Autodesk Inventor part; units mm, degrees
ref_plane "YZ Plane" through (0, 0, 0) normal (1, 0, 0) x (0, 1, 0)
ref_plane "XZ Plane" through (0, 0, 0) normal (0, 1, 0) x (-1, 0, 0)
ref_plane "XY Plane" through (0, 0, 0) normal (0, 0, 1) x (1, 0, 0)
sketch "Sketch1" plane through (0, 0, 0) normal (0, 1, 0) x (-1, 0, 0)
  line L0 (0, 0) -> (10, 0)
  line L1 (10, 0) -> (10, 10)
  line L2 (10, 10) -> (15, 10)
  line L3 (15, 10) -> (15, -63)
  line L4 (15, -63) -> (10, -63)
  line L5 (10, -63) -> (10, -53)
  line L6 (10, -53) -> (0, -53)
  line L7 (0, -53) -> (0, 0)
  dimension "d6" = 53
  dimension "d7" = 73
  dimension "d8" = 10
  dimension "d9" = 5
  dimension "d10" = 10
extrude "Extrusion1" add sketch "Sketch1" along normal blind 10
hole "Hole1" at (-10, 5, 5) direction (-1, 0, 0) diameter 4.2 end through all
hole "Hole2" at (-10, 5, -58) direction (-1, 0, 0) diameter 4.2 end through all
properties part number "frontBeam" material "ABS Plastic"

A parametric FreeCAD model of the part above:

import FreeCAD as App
import Part
import Sketcher
from FreeCAD import Vector
Q = App.Units.Quantity


def add_polygon(sketch, points):
    """Adds a closed chain of lines whose ends are joined by coincident constraints."""
    first, n = sketch.GeometryCount, len(points)
    for a, b in zip(points, points[1:] + points[:1]):
        sketch.addGeometry(Part.LineSegment(App.Vector(*a, 0), App.Vector(*b, 0)), False)
    for i in range(n):
        sketch.addConstraint(Sketcher.Constraint("Coincident", first + i, 2, first + (i + 1) % n, 1))

doc = App.newDocument("Part")
params = doc.addObject("Spreadsheet::Sheet", "Params")
for row, (alias, value) in enumerate([
    ("sketch1_width", "10 mm"),
    ("sketch1_width2", "5 mm"),
    ("sketch1_height", "53 mm"),
    ("pad1_length", "10 mm"),
    ("sketch2_diameter", "4.2 mm"),
    ("hole_diameter", "4.2 mm"),
    ("sketch3_diameter", "4.2 mm"),
    ("hole2_diameter", "4.2 mm"),
], start=1):
    params.set(f"A{row}", alias)
    params.set(f"B{row}", "=" + value)
    params.setAlias(f"B{row}", alias)

body = doc.addObject("PartDesign::Body", "Body")

sketch1 = body.newObject("Sketcher::SketchObject", "Sketch")
sketch1.AttachmentSupport = (doc.getObject("XZ_Plane"), [""])
sketch1.MapMode = "FlatFace"
add_polygon(sketch1, [(-10, 0), (0, 0), (0, -53), (-10, -53), (-10, -63), (-15, -63), (-15, 10), (-10, 10)])
sketch1.addConstraint(Sketcher.Constraint("Horizontal", 0))
sketch1.addConstraint(Sketcher.Constraint("Vertical", 1))
sketch1.addConstraint(Sketcher.Constraint("Horizontal", 2))
sketch1.addConstraint(Sketcher.Constraint("Vertical", 3))
sketch1.addConstraint(Sketcher.Constraint("Horizontal", 4))
sketch1.addConstraint(Sketcher.Constraint("Vertical", 5))
sketch1.addConstraint(Sketcher.Constraint("Horizontal", 6))
sketch1.addConstraint(Sketcher.Constraint("Vertical", 7))
sketch1.addConstraint(Sketcher.Constraint("Coincident", 0, 2, -1, 1))
sketch1.addConstraint(Sketcher.Constraint("Vertical", 3, 2, 6, 2))
sketch1.addConstraint(Sketcher.Constraint("Equal", 2, 3))
sketch1.addConstraint(Sketcher.Constraint("Equal", 3, 7))
sketch1.addConstraint(Sketcher.Constraint("DistanceX", 0, 1, 0, 2, Q("10 mm")))
sketch1.addConstraint(Sketcher.Constraint("DistanceX", 4, 2, 4, 1, Q("5 mm")))
sketch1.addConstraint(Sketcher.Constraint("DistanceY", 1, 2, 1, 1, Q("53 mm")))
sketch1.setExpression("Constraints[20]", "Params.sketch1_width")
sketch1.setExpression("Constraints[21]", "Params.sketch1_width2")
sketch1.setExpression("Constraints[22]", "Params.sketch1_height")
pad1 = body.newObject("PartDesign::Pad", "Pad")
pad1.Profile = sketch1
pad1.setExpression("Length", "Params.pad1_length")
pad1.Reversed = True

sketch2 = body.newObject("Sketcher::SketchObject", "Sketch001")
sketch2.AttachmentSupport = (doc.getObject("YZ_Plane"), [""])
sketch2.MapMode = "FlatFace"
sketch2.AttachmentOffset = App.Placement(Vector(0, 0, -10), App.Rotation())
sketch2.addGeometry(Part.Circle(Vector(5, 5, 0), Vector(0, 0, 1), 2.1), False)
sketch2.addConstraint(Sketcher.Constraint("Diameter", 0, Q("4.2 mm")))
sketch2.addConstraint(Sketcher.Constraint("DistanceX", -1, 1, 0, 3, Q("5 mm")))
sketch2.addConstraint(Sketcher.Constraint("DistanceY", -1, 1, 0, 3, Q("5 mm")))
sketch2.setExpression("Constraints[0]", "Params.sketch2_diameter")
doc.recompute()
hole = body.newObject("PartDesign::Hole", "Hole")
hole.Profile = sketch2
hole.ThreadType = "None"
hole.setExpression("Diameter", "Params.hole_diameter")
hole.DepthType = "ThroughAll"

sketch3 = body.newObject("Sketcher::SketchObject", "Sketch002")
sketch3.AttachmentSupport = (doc.getObject("YZ_Plane"), [""])
sketch3.MapMode = "FlatFace"
sketch3.AttachmentOffset = App.Placement(Vector(0, 0, -10), App.Rotation())
sketch3.addGeometry(Part.Circle(Vector(5, -58, 0), Vector(0, 0, 1), 2.1), False)
sketch3.addConstraint(Sketcher.Constraint("Diameter", 0, Q("4.2 mm")))
sketch3.addConstraint(Sketcher.Constraint("DistanceX", -1, 1, 0, 3, Q("5 mm")))
sketch3.addConstraint(Sketcher.Constraint("DistanceY", 0, 3, -1, 1, Q("58 mm")))
sketch3.setExpression("Constraints[0]", "Params.sketch3_diameter")
doc.recompute()
hole2 = body.newObject("PartDesign::Hole", "Hole001")
hole2.Profile = sketch3
hole2.ThreadType = "None"
hole2.setExpression("Diameter", "Params.hole2_diameter")
hole2.DepthType = "ThroughAll"

doc.recompute()
